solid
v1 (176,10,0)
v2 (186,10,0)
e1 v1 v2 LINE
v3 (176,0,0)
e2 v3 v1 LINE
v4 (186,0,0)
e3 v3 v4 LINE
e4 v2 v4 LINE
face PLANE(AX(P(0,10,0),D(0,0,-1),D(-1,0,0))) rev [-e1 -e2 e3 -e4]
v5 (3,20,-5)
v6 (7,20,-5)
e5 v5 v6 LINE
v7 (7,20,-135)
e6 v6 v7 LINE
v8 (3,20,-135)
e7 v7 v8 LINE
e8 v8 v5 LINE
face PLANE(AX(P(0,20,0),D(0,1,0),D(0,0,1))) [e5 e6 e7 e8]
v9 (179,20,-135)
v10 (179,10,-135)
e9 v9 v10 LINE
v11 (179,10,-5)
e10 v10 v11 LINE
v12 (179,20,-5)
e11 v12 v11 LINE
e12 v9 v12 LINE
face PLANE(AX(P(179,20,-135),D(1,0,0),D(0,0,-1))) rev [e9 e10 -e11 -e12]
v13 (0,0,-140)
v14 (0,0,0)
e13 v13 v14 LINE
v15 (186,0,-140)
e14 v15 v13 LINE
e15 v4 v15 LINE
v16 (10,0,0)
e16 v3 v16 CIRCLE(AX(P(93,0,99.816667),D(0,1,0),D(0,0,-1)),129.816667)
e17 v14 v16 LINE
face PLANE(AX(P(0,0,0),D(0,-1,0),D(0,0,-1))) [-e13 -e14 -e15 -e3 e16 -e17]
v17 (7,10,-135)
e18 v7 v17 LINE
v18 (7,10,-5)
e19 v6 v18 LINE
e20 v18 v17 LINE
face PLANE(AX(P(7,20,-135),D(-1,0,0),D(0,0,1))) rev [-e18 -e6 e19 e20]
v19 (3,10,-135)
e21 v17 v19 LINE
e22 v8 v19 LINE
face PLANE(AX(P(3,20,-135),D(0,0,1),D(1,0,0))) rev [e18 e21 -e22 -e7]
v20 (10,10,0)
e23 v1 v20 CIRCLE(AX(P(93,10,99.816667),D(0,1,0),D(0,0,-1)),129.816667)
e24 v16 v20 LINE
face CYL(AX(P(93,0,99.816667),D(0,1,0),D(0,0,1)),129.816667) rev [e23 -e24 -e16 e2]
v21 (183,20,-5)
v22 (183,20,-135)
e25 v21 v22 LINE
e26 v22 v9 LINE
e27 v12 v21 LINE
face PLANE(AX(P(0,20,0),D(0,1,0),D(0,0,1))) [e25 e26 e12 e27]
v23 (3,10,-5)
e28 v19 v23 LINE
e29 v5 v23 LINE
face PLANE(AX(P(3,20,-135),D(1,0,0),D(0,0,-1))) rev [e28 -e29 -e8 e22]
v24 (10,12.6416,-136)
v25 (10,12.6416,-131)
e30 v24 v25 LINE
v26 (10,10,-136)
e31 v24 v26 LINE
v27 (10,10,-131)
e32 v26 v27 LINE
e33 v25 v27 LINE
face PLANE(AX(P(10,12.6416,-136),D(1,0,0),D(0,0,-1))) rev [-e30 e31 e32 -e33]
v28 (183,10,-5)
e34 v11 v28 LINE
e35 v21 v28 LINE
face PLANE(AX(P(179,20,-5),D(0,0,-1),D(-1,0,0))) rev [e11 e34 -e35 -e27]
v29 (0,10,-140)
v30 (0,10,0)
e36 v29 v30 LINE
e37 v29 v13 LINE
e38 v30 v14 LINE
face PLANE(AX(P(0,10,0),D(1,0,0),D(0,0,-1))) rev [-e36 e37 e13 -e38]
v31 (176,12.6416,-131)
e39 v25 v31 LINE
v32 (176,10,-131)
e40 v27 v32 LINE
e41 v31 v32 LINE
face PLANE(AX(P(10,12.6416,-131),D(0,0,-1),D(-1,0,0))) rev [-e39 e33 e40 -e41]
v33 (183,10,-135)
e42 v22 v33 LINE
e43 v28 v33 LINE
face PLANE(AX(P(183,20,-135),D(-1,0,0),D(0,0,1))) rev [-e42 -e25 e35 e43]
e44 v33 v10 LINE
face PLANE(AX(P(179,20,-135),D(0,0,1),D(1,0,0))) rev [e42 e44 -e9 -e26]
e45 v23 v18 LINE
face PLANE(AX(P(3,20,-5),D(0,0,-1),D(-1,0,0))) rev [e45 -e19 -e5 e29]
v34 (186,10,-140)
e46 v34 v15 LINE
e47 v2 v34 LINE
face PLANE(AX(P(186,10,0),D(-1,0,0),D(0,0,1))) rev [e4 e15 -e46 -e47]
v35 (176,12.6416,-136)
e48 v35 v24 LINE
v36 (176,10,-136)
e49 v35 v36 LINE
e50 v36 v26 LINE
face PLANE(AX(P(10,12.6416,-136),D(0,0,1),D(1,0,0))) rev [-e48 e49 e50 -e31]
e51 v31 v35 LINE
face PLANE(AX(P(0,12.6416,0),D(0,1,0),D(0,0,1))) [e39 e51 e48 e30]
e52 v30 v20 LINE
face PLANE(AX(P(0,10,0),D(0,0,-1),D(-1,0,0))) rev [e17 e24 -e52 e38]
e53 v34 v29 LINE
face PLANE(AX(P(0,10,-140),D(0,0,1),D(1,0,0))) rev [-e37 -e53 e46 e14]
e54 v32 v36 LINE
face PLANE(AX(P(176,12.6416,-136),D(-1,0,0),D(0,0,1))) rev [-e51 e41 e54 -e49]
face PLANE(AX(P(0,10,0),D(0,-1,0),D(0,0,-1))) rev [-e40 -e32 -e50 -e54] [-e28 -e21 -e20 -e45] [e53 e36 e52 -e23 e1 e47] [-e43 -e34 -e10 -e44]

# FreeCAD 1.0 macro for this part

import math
import FreeCAD as App
import Part
import Sketcher

doc = App.newDocument("Part")
params = doc.addObject("Spreadsheet::Sheet", "Params")
for row, (alias, value) in enumerate([
    ("sketch1_width", "186 mm"),
    ("sketch1_height", "140 mm"),
    ("pad1_length", "10 mm"),
    ("sketch2_width", "166 mm"),
    ("sketch3_width", "166 mm"),
    ("sketch3_height", "5 mm"),
    ("pad2_length", "2.6416 mm"),
    ("sketch4_width", "4 mm"),
    ("sketch4_height", "130 mm"),
    ("pad3_length", "10 mm"),
    ("sketch5_width", "4 mm"),
    ("sketch5_height", "130 mm"),
    ("pad4_length", "10 mm"),
], start=1):
    params.set(f"A{row}", alias)
    params.set(f"B{row}", "=" + value)
    params.setAlias(f"B{row}", alias)

body = doc.addObject("PartDesign::Body", "Body")

sketch1 = body.newObject("Sketcher::SketchObject", "Sketch")
sketch1.AttachmentSupport = (doc.getObject("XZ_Plane"), [""])
sketch1.MapMode = "FlatFace"
sketch1.addGeometry(Part.LineSegment(App.Vector(0, -140, 0), App.Vector(0, 0, 0)), False)
sketch1.addGeometry(Part.LineSegment(App.Vector(0, 0, 0), App.Vector(186, 0, 0)), False)
sketch1.addGeometry(Part.LineSegment(App.Vector(186, 0, 0), App.Vector(186, -140, 0)), False)
sketch1.addGeometry(Part.LineSegment(App.Vector(186, -140, 0), App.Vector(0, -140, 0)), False)
sketch1.addConstraint(Sketcher.Constraint("Coincident", 0, 2, 1, 1))
sketch1.addConstraint(Sketcher.Constraint("Coincident", 1, 2, 2, 1))
sketch1.addConstraint(Sketcher.Constraint("Coincident", 2, 2, 3, 1))
sketch1.addConstraint(Sketcher.Constraint("Coincident", 3, 2, 0, 1))
sketch1.addConstraint(Sketcher.Constraint("Vertical", 0))
sketch1.addConstraint(Sketcher.Constraint("Horizontal", 1))
sketch1.addConstraint(Sketcher.Constraint("Vertical", 2))
sketch1.addConstraint(Sketcher.Constraint("Horizontal", 3))
sketch1.addConstraint(Sketcher.Constraint("Coincident", 0, 2, -1, 1))
sketch1.addConstraint(Sketcher.Constraint("DistanceX", 1, 1, 1, 2, 186.0))
sketch1.addConstraint(Sketcher.Constraint("DistanceY", 0, 1, 0, 2, 140.0))
sketch1.setExpression("Constraints[9]", "Params.sketch1_width")
sketch1.setExpression("Constraints[10]", "Params.sketch1_height")
pad1 = body.newObject("PartDesign::Pad", "Pad")
pad1.Profile = sketch1
pad1.setExpression("Length", "Params.pad1_length")
pad1.Reversed = True

sketch2 = body.newObject("Sketcher::SketchObject", "Sketch001")
sketch2.AttachmentSupport = (doc.getObject("XZ_Plane"), [""])
sketch2.MapMode = "FlatFace"
sketch2.AttachmentOffset = App.Placement(App.Vector(0, 0, -10), App.Rotation())
sketch2.addGeometry(Part.LineSegment(App.Vector(10, 0, 0), App.Vector(176, 0, 0)), False)
sketch2.addGeometry(Part.ArcOfCircle(Part.Circle(App.Vector(93, 99.816667, 0), App.Vector(0, 0, 1), 129.816667), math.radians(-129.744352), math.radians(-50.255648)), False)
sketch2.addConstraint(Sketcher.Constraint("Coincident", 0, 1, 1, 1))
sketch2.addConstraint(Sketcher.Constraint("Coincident", 1, 2, 0, 2))
sketch2.addConstraint(Sketcher.Constraint("Horizontal", 0))
sketch2.addConstraint(Sketcher.Constraint("PointOnObject", 0, 1, -1))
sketch2.addConstraint(Sketcher.Constraint("DistanceX", 0, 1, 0, 2, 166.0))
sketch2.addConstraint(Sketcher.Constraint("DistanceX", -1, 1, 1, 3, 93.0))
sketch2.addConstraint(Sketcher.Constraint("Radius", 1, 129.816667))
sketch2.setExpression("Constraints[4]", "Params.sketch2_width")
pocket1 = body.newObject("PartDesign::Pocket", "Pocket")
pocket1.Profile = sketch2
pocket1.Type = "ThroughAll"
pocket1.Reversed = True

sketch3 = body.newObject("Sketcher::SketchObject", "Sketch002")
sketch3.AttachmentSupport = (doc.getObject("XZ_Plane"), [""])
sketch3.MapMode = "FlatFace"
sketch3.AttachmentOffset = App.Placement(App.Vector(0, 0, -10), App.Rotation())
sketch3.addGeometry(Part.LineSegment(App.Vector(10, -136, 0), App.Vector(10, -131, 0)), False)
sketch3.addGeometry(Part.LineSegment(App.Vector(10, -131, 0), App.Vector(176, -131, 0)), False)
sketch3.addGeometry(Part.LineSegment(App.Vector(176, -131, 0), App.Vector(176, -136, 0)), False)
sketch3.addGeometry(Part.LineSegment(App.Vector(176, -136, 0), App.Vector(10, -136, 0)), False)
sketch3.addConstraint(Sketcher.Constraint("Coincident", 0, 2, 1, 1))
sketch3.addConstraint(Sketcher.Constraint("Coincident", 1, 2, 2, 1))
sketch3.addConstraint(Sketcher.Constraint("Coincident", 2, 2, 3, 1))
sketch3.addConstraint(Sketcher.Constraint("Coincident", 3, 2, 0, 1))
sketch3.addConstraint(Sketcher.Constraint("Vertical", 0))
sketch3.addConstraint(Sketcher.Constraint("Horizontal", 1))
sketch3.addConstraint(Sketcher.Constraint("Vertical", 2))
sketch3.addConstraint(Sketcher.Constraint("Horizontal", 3))
sketch3.addConstraint(Sketcher.Constraint("DistanceX", 1, 1, 1, 2, 166.0))
sketch3.addConstraint(Sketcher.Constraint("DistanceY", 0, 1, 0, 2, 5.0))
sketch3.addConstraint(Sketcher.Constraint("DistanceX", -1, 1, 0, 2, 10.0))
sketch3.addConstraint(Sketcher.Constraint("DistanceY", 0, 2, -1, 1, 131.0))
sketch3.setExpression("Constraints[8]", "Params.sketch3_width")
sketch3.setExpression("Constraints[9]", "Params.sketch3_height")
pad2 = body.newObject("PartDesign::Pad", "Pad001")
pad2.Profile = sketch3
pad2.setExpression("Length", "Params.pad2_length")
pad2.Reversed = True

sketch4 = body.newObject("Sketcher::SketchObject", "Sketch003")
sketch4.AttachmentSupport = (doc.getObject("XZ_Plane"), [""])
sketch4.MapMode = "FlatFace"
sketch4.AttachmentOffset = App.Placement(App.Vector(0, 0, -10), App.Rotation())
sketch4.addGeometry(Part.LineSegment(App.Vector(179, -135, 0), App.Vector(179, -5, 0)), False)
sketch4.addGeometry(Part.LineSegment(App.Vector(179, -5, 0), App.Vector(183, -5, 0)), False)
sketch4.addGeometry(Part.LineSegment(App.Vector(183, -5, 0), App.Vector(183, -135, 0)), False)
sketch4.addGeometry(Part.LineSegment(App.Vector(183, -135, 0), App.Vector(179, -135, 0)), False)
sketch4.addConstraint(Sketcher.Constraint("Coincident", 0, 2, 1, 1))
sketch4.addConstraint(Sketcher.Constraint("Coincident", 1, 2, 2, 1))
sketch4.addConstraint(Sketcher.Constraint("Coincident", 2, 2, 3, 1))
sketch4.addConstraint(Sketcher.Constraint("Coincident", 3, 2, 0, 1))
sketch4.addConstraint(Sketcher.Constraint("Vertical", 0))
sketch4.addConstraint(Sketcher.Constraint("Horizontal", 1))
sketch4.addConstraint(Sketcher.Constraint("Vertical", 2))
sketch4.addConstraint(Sketcher.Constraint("Horizontal", 3))
sketch4.addConstraint(Sketcher.Constraint("DistanceX", 1, 1, 1, 2, 4.0))
sketch4.addConstraint(Sketcher.Constraint("DistanceY", 0, 1, 0, 2, 130.0))
sketch4.addConstraint(Sketcher.Constraint("DistanceX", -1, 1, 0, 2, 179.0))
sketch4.addConstraint(Sketcher.Constraint("DistanceY", 0, 2, -1, 1, 5.0))
sketch4.setExpression("Constraints[8]", "Params.sketch4_width")
sketch4.setExpression("Constraints[9]", "Params.sketch4_height")
pad3 = body.newObject("PartDesign::Pad", "Pad002")
pad3.Profile = sketch4
pad3.setExpression("Length", "Params.pad3_length")
pad3.Reversed = True

sketch5 = body.newObject("Sketcher::SketchObject", "Sketch004")
sketch5.AttachmentSupport = (doc.getObject("XZ_Plane"), [""])
sketch5.MapMode = "FlatFace"
sketch5.AttachmentOffset = App.Placement(App.Vector(0, 0, -10), App.Rotation())
sketch5.addGeometry(Part.LineSegment(App.Vector(3, -135, 0), App.Vector(3, -5, 0)), False)
sketch5.addGeometry(Part.LineSegment(App.Vector(3, -5, 0), App.Vector(7, -5, 0)), False)
sketch5.addGeometry(Part.LineSegment(App.Vector(7, -5, 0), App.Vector(7, -135, 0)), False)
sketch5.addGeometry(Part.LineSegment(App.Vector(7, -135, 0), App.Vector(3, -135, 0)), False)
sketch5.addConstraint(Sketcher.Constraint("Coincident", 0, 2, 1, 1))
sketch5.addConstraint(Sketcher.Constraint("Coincident", 1, 2, 2, 1))
sketch5.addConstraint(Sketcher.Constraint("Coincident", 2, 2, 3, 1))
sketch5.addConstraint(Sketcher.Constraint("Coincident", 3, 2, 0, 1))
sketch5.addConstraint(Sketcher.Constraint("Vertical", 0))
sketch5.addConstraint(Sketcher.Constraint("Horizontal", 1))
sketch5.addConstraint(Sketcher.Constraint("Vertical", 2))
sketch5.addConstraint(Sketcher.Constraint("Horizontal", 3))
sketch5.addConstraint(Sketcher.Constraint("DistanceX", 1, 1, 1, 2, 4.0))
sketch5.addConstraint(Sketcher.Constraint("DistanceY", 0, 1, 0, 2, 130.0))
sketch5.addConstraint(Sketcher.Constraint("DistanceX", -1, 1, 0, 2, 3.0))
sketch5.addConstraint(Sketcher.Constraint("DistanceY", 0, 2, -1, 1, 5.0))
sketch5.setExpression("Constraints[8]", "Params.sketch5_width")
sketch5.setExpression("Constraints[9]", "Params.sketch5_height")
pad4 = body.newObject("PartDesign::Pad", "Pad003")
pad4.Profile = sketch5
pad4.setExpression("Length", "Params.pad4_length")
pad4.Reversed = True

doc.recompute()
